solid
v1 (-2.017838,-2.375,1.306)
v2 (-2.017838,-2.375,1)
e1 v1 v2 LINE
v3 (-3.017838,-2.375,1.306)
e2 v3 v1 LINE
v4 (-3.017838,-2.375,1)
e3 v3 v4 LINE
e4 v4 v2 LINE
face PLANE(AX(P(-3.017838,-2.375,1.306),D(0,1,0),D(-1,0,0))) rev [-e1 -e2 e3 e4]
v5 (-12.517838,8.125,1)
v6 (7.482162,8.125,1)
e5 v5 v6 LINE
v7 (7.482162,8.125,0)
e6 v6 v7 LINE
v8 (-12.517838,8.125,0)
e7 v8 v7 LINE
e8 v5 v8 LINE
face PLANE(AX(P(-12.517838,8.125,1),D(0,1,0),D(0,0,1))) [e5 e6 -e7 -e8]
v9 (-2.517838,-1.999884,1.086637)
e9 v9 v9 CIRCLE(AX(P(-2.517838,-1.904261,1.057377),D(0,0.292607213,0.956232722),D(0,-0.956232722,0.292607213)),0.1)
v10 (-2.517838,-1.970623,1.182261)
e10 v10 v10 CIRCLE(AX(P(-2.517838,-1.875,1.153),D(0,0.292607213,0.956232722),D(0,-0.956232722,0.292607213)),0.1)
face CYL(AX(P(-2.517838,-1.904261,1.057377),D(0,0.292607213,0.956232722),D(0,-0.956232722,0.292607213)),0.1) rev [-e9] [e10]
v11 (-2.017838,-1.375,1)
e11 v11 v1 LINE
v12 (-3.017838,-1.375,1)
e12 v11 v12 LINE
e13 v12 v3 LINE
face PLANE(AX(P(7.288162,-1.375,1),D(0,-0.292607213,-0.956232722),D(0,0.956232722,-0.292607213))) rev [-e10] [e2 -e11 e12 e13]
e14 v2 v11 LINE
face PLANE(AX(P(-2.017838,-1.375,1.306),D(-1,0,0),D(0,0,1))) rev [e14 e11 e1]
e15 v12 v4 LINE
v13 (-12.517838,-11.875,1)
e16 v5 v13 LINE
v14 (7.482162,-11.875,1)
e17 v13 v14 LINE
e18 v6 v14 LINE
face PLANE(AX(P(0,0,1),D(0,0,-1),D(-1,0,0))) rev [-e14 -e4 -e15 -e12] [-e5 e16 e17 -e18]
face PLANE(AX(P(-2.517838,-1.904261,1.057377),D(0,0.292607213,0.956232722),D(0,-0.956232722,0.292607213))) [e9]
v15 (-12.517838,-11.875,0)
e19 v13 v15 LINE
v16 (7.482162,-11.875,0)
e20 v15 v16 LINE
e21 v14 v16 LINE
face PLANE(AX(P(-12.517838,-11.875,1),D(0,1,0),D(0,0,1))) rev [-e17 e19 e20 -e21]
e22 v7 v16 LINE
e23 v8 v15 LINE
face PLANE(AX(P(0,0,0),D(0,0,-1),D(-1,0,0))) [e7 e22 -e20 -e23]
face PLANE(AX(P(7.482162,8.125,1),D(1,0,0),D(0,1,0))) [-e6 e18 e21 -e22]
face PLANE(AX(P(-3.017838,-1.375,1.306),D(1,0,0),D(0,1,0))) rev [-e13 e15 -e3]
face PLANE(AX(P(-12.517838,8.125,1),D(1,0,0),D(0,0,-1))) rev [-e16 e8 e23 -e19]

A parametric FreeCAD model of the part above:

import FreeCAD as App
import Part
import Sketcher
from FreeCAD import Vector


def add_polygon(sketch, points):
    """Adds a closed chain of lines whose ends are joined by coincident constraints."""
    first, n = sketch.GeometryCount, len(points)
    for a, b in zip(points, points[1:] + points[:1]):
        sketch.addGeometry(Part.LineSegment(App.Vector(*a, 0), App.Vector(*b, 0)), False)
    for i in range(n):
        sketch.addConstraint(Sketcher.Constraint("Coincident", first + i, 2, first + (i + 1) % n, 1))

doc = App.newDocument("Part")
body = doc.addObject("PartDesign::Body", "Body")

sketch1 = doc.addObject("Sketcher::SketchObject", "Sketch")
body.addObject(sketch1)
sketch1.AttachmentSupport = (doc.XY_Plane, [""])
sketch1.MapMode = "FlatFace"
add_polygon(sketch1, [(-13, 8), (-13, -12), (7, -12), (7, 8)])
sketch1.addConstraint([
    Sketcher.Constraint("Vertical", 0),
    Sketcher.Constraint("Horizontal", 1),
    Sketcher.Constraint("Vertical", 2),
    Sketcher.Constraint("Horizontal", 3),
    Sketcher.Constraint("Equal", 3, 0),
    Sketcher.Constraint("DistanceX", 1, 1, 1, 2, 20.0),
    Sketcher.Constraint("DistanceY", 0, 2, -1, 1, 11.875),
    Sketcher.Constraint("DistanceX", 0, 2, -1, 1, 12.517838),
])
pad1 = doc.addObject("PartDesign::Pad", "Pad")
body.addObject(pad1)
pad1.Profile = sketch1
pad1.Length = 1

sketch2 = doc.addObject("Sketcher::SketchObject", "Sketch001")
body.addObject(sketch2)
sketch2.AttachmentSupport = (doc.XY_Plane, [""])
sketch2.MapMode = "FlatFace"
sketch2.AttachmentOffset = App.Placement(Vector(0, 0, 1), App.Rotation())
add_polygon(sketch2, [(-3, -1.4), (-3, -2.4), (-2, -2.4), (-2, -1.4)])
sketch2.addConstraint([
    Sketcher.Constraint("Vertical", 0),
    Sketcher.Constraint("Horizontal", 1),
    Sketcher.Constraint("Vertical", 2),
    Sketcher.Constraint("Horizontal", 3),
    Sketcher.Constraint("Equal", 3, 0),
    Sketcher.Constraint("DistanceX", 1, 1, 1, 2, 1.0),
    Sketcher.Constraint("DistanceY", 0, 2, -1, 1, 2.375),
    Sketcher.Constraint("DistanceX", 0, 2, -1, 1, 3.017838),
])
pad2 = doc.addObject("PartDesign::Pad", "Pad001")
body.addObject(pad2)
pad2.Profile = sketch2
pad2.Length = 0.306

sketch3 = doc.addObject("Sketcher::SketchObject", "Sketch002")
body.addObject(sketch3)
sketch3.AttachmentSupport = (doc.YZ_Plane, [""])
sketch3.MapMode = "FlatFace"
sketch3.AttachmentOffset = App.Placement(Vector(0, 0, -3.017838), App.Rotation())
add_polygon(sketch3, [(-1.38, 1), (-2.38, 1.31), (-1.38, 1.31)])
sketch3.addConstraint([
    Sketcher.Constraint("Horizontal", 1),
    Sketcher.Constraint("Vertical", 2),
    Sketcher.Constraint("DistanceX", 1, 1, 1, 2, 1.0),
    Sketcher.Constraint("DistanceY", -1, 1, 2, 2, 1.0),
    Sketcher.Constraint("DistanceY", 2, 2, 2, 1, 0.306),
    Sketcher.Constraint("DistanceX", 0, 2, -1, 1, 2.375),
])
pocket1 = doc.addObject("PartDesign::Pocket", "Pocket")
body.addObject(pocket1)
pocket1.Profile = sketch3
pocket1.Length = 10.306
pocket1.Reversed = True

sketch4 = doc.addObject("Sketcher::SketchObject", "Sketch003")
body.addObject(sketch4)
sketch4.Placement = App.Placement(Vector(0, 0.162074, 0.529655), App.Rotation(Vector(1, 0, 0), Vector(0, 0.956232722, -0.292607213), Vector(0, 0.292607213, 0.956232722), "ZXY"))
sketch4.addGeometry(Part.Circle(Vector(-2.52, -2.13, 0), Vector(0, 0, 1), 0.1), False)
sketch4.addConstraint([
    Sketcher.Constraint("Diameter", 0, 0.2),
    Sketcher.Constraint("DistanceX", 0, 3, -1, 1, 2.517838),
    Sketcher.Constraint("DistanceY", 0, 3, -1, 1, 2.130312),
])
pocket2 = doc.addObject("PartDesign::Pocket", "Pocket001")
body.addObject(pocket2)
pocket2.Profile = sketch4
pocket2.Length = 0.1

doc.recompute()
